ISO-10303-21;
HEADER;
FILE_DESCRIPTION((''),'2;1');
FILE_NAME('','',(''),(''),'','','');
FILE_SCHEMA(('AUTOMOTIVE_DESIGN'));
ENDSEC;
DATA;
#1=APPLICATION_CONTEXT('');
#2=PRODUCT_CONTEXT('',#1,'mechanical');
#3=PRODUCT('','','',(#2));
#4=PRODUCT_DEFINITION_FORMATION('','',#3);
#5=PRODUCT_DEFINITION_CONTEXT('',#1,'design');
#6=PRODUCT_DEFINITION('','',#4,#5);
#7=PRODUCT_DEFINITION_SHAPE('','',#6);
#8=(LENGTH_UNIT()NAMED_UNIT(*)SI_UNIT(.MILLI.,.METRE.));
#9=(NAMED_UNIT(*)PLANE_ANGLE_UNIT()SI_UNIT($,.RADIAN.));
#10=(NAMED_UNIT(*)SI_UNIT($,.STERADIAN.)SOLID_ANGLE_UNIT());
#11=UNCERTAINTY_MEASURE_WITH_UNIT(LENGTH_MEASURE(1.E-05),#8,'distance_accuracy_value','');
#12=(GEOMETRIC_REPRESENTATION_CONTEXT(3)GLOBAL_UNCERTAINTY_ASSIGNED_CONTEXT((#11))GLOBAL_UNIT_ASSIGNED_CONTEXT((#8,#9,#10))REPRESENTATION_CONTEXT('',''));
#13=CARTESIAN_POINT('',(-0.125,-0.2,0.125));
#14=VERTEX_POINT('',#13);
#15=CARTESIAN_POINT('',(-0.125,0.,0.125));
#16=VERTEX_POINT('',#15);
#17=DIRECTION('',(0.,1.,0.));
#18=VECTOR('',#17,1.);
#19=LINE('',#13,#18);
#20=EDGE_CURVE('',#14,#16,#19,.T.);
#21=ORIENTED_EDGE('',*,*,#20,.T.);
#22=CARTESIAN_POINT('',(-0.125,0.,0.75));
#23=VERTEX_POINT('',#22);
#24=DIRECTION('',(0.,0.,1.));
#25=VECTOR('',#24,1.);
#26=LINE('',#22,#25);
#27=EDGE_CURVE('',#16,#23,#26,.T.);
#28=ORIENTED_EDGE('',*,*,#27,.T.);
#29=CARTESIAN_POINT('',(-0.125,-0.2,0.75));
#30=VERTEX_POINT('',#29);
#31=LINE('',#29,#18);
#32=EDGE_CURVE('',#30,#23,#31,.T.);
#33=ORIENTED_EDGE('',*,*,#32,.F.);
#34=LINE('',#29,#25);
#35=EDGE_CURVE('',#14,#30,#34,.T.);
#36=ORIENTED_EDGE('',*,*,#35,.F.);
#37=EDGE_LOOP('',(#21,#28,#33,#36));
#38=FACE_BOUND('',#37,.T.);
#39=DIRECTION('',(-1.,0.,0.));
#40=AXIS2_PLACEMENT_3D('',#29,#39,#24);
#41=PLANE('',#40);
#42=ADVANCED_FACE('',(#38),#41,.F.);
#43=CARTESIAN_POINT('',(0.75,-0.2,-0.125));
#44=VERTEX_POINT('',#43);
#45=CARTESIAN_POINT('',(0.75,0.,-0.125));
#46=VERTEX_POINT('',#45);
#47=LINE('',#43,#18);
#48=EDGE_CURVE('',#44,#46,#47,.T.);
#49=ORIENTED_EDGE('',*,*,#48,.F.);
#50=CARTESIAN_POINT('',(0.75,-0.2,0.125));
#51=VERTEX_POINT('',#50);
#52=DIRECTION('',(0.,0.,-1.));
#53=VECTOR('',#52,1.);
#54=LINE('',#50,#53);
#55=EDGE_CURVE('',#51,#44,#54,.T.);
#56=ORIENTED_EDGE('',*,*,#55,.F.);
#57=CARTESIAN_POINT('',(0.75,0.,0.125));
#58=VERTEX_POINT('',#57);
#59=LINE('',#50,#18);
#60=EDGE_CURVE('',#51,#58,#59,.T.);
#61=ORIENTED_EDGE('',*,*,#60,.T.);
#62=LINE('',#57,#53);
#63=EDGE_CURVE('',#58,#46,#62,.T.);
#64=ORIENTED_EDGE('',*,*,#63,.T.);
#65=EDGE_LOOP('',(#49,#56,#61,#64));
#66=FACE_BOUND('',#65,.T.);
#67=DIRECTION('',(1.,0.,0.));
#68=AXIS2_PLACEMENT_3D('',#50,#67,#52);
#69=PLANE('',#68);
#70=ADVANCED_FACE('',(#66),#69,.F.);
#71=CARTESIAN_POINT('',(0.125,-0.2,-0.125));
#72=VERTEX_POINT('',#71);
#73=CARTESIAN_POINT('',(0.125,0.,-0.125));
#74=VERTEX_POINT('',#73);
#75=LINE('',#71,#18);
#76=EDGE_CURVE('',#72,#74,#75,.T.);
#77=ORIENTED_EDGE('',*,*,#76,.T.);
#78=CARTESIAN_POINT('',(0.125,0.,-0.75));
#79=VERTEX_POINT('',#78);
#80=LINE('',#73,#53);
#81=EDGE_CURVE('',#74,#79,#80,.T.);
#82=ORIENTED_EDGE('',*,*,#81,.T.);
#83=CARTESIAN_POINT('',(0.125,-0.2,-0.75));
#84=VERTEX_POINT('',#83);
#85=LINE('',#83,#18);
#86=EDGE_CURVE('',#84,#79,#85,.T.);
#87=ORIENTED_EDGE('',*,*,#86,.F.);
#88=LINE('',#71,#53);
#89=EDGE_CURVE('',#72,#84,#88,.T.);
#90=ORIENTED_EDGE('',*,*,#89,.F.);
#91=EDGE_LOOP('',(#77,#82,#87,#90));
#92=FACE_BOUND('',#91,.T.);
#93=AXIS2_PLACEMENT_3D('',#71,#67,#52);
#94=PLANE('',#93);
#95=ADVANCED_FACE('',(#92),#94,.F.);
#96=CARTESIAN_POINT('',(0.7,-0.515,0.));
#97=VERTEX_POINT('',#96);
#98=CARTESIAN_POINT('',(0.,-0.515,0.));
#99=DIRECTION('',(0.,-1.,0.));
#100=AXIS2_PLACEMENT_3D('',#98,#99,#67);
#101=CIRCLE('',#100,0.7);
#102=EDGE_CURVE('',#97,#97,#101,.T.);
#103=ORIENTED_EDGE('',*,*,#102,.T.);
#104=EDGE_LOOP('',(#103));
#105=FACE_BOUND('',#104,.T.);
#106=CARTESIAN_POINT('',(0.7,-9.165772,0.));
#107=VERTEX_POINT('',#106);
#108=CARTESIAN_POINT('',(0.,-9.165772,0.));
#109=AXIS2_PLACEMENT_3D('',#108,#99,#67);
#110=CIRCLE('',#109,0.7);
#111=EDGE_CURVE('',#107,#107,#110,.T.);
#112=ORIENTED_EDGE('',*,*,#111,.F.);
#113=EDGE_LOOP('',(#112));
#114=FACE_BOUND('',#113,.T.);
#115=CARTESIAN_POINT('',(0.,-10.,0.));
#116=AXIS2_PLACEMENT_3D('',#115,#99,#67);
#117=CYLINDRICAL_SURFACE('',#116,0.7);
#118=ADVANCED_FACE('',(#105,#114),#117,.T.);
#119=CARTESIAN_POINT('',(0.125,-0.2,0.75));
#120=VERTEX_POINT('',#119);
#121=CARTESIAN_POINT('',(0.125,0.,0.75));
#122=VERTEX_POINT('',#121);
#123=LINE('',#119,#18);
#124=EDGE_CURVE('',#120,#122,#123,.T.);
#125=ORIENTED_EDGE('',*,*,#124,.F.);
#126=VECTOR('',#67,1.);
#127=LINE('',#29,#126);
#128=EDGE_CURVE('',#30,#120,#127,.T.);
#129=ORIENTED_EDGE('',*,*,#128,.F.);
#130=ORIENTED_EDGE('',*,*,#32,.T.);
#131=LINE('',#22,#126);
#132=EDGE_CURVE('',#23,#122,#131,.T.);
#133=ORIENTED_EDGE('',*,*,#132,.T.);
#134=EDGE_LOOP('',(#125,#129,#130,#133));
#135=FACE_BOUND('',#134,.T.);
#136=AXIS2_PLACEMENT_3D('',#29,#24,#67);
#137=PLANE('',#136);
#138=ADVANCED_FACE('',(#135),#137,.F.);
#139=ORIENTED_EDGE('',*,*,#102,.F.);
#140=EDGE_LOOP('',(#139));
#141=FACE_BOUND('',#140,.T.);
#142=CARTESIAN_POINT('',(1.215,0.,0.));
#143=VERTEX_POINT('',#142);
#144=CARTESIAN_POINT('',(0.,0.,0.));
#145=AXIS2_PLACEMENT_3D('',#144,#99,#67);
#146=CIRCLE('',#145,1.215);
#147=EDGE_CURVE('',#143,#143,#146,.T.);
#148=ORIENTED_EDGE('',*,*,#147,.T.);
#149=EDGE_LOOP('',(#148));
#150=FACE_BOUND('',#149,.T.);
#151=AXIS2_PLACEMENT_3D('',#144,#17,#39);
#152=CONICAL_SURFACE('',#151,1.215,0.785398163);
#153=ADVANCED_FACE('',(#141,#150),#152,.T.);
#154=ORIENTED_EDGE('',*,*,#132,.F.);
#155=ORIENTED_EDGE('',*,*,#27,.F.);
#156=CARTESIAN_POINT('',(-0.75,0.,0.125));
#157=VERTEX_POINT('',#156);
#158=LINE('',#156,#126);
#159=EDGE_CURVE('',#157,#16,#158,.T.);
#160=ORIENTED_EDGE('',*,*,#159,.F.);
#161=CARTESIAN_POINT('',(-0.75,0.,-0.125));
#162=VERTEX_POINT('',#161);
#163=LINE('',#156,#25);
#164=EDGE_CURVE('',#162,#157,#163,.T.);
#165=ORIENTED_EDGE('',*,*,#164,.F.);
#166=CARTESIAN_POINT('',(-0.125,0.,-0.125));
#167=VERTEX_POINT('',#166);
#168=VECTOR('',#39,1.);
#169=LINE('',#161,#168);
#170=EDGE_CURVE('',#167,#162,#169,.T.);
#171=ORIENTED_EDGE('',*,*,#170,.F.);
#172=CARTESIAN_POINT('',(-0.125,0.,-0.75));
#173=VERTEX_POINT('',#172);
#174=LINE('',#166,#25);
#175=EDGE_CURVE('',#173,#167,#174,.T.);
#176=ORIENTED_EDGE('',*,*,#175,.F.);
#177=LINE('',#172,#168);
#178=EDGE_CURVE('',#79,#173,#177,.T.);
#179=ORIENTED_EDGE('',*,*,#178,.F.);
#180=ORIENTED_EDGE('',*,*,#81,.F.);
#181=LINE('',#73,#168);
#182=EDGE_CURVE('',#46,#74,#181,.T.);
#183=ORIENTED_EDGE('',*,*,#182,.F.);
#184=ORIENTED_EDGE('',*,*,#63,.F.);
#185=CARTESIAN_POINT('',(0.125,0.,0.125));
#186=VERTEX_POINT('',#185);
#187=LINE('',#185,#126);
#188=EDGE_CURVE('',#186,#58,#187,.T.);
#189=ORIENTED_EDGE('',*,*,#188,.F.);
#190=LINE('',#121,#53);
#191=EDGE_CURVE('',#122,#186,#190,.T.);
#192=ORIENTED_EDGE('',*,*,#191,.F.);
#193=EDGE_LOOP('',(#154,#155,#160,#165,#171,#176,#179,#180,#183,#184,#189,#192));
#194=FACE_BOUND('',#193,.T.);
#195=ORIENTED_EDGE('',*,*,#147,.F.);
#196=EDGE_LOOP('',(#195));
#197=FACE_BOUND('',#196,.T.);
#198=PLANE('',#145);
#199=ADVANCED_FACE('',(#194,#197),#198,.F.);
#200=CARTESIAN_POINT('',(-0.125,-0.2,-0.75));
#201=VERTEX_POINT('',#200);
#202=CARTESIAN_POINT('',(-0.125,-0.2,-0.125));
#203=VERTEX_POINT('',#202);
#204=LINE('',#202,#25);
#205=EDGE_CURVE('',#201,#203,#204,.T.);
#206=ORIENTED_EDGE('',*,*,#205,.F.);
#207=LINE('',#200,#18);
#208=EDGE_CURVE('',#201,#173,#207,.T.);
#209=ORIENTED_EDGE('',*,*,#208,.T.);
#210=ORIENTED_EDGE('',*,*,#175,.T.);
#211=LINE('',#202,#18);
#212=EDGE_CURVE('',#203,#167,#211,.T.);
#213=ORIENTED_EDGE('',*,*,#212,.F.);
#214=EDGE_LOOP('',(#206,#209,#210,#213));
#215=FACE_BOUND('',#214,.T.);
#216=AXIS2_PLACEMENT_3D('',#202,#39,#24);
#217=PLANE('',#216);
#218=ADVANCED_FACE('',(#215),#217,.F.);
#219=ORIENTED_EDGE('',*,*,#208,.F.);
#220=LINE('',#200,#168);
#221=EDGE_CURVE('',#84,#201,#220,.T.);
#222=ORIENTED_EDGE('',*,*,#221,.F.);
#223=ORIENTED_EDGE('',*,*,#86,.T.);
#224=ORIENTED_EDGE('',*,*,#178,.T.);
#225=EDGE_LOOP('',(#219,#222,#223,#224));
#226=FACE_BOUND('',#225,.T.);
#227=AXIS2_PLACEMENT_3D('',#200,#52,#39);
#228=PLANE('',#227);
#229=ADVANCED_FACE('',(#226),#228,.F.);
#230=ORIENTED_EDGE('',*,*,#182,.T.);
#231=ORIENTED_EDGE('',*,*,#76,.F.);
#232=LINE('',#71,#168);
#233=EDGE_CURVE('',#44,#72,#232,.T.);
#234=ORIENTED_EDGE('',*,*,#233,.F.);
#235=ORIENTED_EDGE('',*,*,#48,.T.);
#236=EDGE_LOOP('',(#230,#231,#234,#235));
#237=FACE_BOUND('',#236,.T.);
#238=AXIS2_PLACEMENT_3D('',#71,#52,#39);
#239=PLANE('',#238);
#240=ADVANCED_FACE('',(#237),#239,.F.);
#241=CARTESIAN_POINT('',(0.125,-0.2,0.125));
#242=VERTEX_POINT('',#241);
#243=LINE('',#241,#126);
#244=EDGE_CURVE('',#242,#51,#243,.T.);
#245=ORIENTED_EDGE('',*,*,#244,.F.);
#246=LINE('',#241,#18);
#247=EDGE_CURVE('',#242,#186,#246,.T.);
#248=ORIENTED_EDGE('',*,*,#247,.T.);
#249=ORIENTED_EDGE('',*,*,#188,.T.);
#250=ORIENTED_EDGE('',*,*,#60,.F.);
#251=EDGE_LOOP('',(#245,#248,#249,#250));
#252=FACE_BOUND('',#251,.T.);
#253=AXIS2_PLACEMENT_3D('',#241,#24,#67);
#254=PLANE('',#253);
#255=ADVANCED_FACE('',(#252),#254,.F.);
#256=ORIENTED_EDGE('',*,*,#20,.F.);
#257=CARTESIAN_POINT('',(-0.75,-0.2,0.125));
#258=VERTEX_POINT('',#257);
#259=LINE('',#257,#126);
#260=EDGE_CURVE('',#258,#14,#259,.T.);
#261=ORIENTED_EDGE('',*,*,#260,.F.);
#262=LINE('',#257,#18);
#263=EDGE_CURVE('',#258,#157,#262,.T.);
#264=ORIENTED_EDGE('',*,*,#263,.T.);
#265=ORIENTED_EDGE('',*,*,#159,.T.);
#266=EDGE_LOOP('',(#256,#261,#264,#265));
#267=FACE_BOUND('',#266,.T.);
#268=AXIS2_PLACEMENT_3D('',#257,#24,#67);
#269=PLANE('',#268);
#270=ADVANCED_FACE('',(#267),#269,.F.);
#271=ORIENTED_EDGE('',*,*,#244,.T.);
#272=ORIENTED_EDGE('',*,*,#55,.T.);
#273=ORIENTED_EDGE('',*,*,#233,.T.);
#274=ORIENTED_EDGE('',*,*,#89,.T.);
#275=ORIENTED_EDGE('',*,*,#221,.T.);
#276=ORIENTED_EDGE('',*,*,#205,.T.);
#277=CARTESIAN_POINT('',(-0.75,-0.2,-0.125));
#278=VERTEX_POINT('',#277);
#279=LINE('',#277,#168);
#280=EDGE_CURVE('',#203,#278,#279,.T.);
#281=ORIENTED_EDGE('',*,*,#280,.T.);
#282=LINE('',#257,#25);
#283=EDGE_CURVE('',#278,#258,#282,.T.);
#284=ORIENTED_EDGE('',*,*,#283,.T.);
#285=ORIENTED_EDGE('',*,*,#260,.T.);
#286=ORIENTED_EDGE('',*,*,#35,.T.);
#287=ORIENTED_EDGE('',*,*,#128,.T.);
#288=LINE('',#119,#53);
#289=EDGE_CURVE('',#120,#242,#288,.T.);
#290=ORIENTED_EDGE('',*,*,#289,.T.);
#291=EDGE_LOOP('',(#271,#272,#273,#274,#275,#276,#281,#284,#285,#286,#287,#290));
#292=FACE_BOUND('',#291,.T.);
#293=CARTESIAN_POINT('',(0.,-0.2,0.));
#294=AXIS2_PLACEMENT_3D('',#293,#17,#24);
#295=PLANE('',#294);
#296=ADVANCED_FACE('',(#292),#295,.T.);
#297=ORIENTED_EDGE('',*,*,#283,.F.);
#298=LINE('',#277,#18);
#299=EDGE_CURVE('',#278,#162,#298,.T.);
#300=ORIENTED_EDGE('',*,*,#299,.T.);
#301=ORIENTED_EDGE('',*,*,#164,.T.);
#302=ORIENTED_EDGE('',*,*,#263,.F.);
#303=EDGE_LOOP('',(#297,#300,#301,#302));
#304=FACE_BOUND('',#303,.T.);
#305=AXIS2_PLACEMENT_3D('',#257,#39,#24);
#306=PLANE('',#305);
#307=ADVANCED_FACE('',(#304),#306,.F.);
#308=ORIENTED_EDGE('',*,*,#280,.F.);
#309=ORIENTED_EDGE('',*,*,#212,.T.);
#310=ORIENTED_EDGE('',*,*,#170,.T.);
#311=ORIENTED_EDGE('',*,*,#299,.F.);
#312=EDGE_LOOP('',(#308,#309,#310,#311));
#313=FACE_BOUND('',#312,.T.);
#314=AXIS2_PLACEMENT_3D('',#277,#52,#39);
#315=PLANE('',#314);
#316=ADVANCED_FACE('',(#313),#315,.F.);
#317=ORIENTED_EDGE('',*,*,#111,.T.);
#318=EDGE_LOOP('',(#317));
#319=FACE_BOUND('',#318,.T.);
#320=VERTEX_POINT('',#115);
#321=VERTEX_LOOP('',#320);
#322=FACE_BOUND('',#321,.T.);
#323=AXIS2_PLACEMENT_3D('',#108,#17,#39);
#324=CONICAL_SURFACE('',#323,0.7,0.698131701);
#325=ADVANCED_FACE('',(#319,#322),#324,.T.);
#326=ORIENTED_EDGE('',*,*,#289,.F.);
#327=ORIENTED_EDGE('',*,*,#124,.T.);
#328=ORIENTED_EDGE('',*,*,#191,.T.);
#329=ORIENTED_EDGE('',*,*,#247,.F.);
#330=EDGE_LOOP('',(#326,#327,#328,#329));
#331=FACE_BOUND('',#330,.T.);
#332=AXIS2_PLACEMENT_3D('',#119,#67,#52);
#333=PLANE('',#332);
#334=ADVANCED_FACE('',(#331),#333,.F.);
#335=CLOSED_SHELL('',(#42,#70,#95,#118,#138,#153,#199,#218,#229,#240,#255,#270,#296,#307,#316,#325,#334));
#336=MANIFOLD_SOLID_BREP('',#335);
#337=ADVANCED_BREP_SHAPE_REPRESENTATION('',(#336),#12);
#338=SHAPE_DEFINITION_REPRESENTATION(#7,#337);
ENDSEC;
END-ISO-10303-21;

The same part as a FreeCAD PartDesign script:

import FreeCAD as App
import Part
import Sketcher

V = App.Vector
Q = App.Units.Quantity


def add_polygon(sketch, points):
    """Adds a closed chain of lines whose ends are joined by coincident constraints."""
    first, n = sketch.GeometryCount, len(points)
    for a, b in zip(points, points[1:] + points[:1]):
        sketch.addGeometry(Part.LineSegment(App.Vector(*a, 0), App.Vector(*b, 0)), False)
    for i in range(n):
        sketch.addConstraint(Sketcher.Constraint("Coincident", first + i, 2, first + (i + 1) % n, 1))

doc = App.newDocument("Part")
params = doc.addObject("Spreadsheet::Sheet", "Params")
for row, (alias, value) in enumerate([
    ("sketch1_height", "10 mm"),
    ("revolution_angle", "360 deg"),
    ("sketch2_width", "0.25 mm"),
    ("pocket1_length", "0.2 mm"),
], start=1):
    params.set(f"A{row}", alias)
    params.set(f"B{row}", "=" + value)
    params.setAlias(f"B{row}", alias)

body = doc.addObject("PartDesign::Body", "Body")

# Sketch on XY plane
sketch1 = body.newObject("Sketcher::SketchObject", "Sketch")
sketch1.AttachmentSupport = (doc.getObject("XY_Plane"), [""])
sketch1.MapMode = "FlatFace"
add_polygon(sketch1, [(0, 0), (-1.215, 0), (-0.7, -0.515), (-0.7, -9.165772), (0, -10)])  # lines 0-4
sketch1.addConstraint([
    Sketcher.Constraint("Horizontal", 0),
    Sketcher.Constraint("Vertical", 2),
    Sketcher.Constraint("Vertical", 4),
    Sketcher.Constraint("Coincident", 4, 2, -1, 1),
    Sketcher.Constraint("DistanceY", 4, 1, 4, 2, Q("10 mm")),
    Sketcher.Constraint("Angle", 1, Q("-45 deg")),
    Sketcher.Constraint("Angle", 3, Q("-50 deg")),
    Sketcher.Constraint("DistanceX", 1, 2, -1, 1, Q("0.7 mm")),
    Sketcher.Constraint("DistanceX", 0, 2, 0, 1, Q("1.215 mm")),
])
sketch1.setExpression("Constraints[9]", "Params.sketch1_height")
revolution = body.newObject("PartDesign::Revolution", "Revolution")
revolution.Profile = sketch1
revolution.ReferenceAxis = (sketch1, ["V_Axis"])
revolution.setExpression("Angle", "Params.revolution_angle")

# Sketch on XZ plane
sketch2 = body.newObject("Sketcher::SketchObject", "Sketch001")
sketch2.AttachmentSupport = (doc.getObject("XZ_Plane"), [""])
sketch2.MapMode = "FlatFace"
add_polygon(sketch2, [(-0.75, 0.125), (-0.125, 0.125), (-0.125, 0.75), (0.125, 0.75), (0.125, 0.125), (0.75, 0.125), (0.75, -0.125), (0.125, -0.125), (0.125, -0.75), (-0.125, -0.75), (-0.125, -0.125), (-0.75, -0.125)])  # lines 0-11
sketch2.addConstraint([
    Sketcher.Constraint("Horizontal", 0),
    Sketcher.Constraint("Vertical", 1),
    Sketcher.Constraint("Horizontal", 2),
    Sketcher.Constraint("Vertical", 3),
    Sketcher.Constraint("Horizontal", 4),
    Sketcher.Constraint("Vertical", 5),
    Sketcher.Constraint("Horizontal", 6),
    Sketcher.Constraint("Vertical", 7),
    Sketcher.Constraint("Horizontal", 8),
    Sketcher.Constraint("Vertical", 9),
    Sketcher.Constraint("Horizontal", 10),
    Sketcher.Constraint("Vertical", 11),
    Sketcher.Constraint("Symmetric", 0, 2, 6, 2, -1, 1),
    Sketcher.Constraint("Symmetric", 2, 2, 8, 2, -1, 1),
    Sketcher.Constraint("Symmetric", 4, 2, 10, 2, -1, 1),
    Sketcher.Constraint("Symmetric", 0, 2, 3, 2, -2),
    Sketcher.Constraint("Equal", 10, 1),
    Sketcher.Constraint("Equal", 8, 5),
    Sketcher.Constraint("DistanceX", 2, 1, 2, 2, Q("0.25 mm")),
    Sketcher.Constraint("DistanceX", 0, 1, 0, 2, Q("0.625 mm")),
])
sketch2.setExpression("Constraints[30]", "Params.sketch2_width")
pocket1 = body.newObject("PartDesign::Pocket", "Pocket")
pocket1.Profile = sketch2
pocket1.setExpression("Length", "Params.pocket1_length")
pocket1.Reversed = True

doc.recompute()
